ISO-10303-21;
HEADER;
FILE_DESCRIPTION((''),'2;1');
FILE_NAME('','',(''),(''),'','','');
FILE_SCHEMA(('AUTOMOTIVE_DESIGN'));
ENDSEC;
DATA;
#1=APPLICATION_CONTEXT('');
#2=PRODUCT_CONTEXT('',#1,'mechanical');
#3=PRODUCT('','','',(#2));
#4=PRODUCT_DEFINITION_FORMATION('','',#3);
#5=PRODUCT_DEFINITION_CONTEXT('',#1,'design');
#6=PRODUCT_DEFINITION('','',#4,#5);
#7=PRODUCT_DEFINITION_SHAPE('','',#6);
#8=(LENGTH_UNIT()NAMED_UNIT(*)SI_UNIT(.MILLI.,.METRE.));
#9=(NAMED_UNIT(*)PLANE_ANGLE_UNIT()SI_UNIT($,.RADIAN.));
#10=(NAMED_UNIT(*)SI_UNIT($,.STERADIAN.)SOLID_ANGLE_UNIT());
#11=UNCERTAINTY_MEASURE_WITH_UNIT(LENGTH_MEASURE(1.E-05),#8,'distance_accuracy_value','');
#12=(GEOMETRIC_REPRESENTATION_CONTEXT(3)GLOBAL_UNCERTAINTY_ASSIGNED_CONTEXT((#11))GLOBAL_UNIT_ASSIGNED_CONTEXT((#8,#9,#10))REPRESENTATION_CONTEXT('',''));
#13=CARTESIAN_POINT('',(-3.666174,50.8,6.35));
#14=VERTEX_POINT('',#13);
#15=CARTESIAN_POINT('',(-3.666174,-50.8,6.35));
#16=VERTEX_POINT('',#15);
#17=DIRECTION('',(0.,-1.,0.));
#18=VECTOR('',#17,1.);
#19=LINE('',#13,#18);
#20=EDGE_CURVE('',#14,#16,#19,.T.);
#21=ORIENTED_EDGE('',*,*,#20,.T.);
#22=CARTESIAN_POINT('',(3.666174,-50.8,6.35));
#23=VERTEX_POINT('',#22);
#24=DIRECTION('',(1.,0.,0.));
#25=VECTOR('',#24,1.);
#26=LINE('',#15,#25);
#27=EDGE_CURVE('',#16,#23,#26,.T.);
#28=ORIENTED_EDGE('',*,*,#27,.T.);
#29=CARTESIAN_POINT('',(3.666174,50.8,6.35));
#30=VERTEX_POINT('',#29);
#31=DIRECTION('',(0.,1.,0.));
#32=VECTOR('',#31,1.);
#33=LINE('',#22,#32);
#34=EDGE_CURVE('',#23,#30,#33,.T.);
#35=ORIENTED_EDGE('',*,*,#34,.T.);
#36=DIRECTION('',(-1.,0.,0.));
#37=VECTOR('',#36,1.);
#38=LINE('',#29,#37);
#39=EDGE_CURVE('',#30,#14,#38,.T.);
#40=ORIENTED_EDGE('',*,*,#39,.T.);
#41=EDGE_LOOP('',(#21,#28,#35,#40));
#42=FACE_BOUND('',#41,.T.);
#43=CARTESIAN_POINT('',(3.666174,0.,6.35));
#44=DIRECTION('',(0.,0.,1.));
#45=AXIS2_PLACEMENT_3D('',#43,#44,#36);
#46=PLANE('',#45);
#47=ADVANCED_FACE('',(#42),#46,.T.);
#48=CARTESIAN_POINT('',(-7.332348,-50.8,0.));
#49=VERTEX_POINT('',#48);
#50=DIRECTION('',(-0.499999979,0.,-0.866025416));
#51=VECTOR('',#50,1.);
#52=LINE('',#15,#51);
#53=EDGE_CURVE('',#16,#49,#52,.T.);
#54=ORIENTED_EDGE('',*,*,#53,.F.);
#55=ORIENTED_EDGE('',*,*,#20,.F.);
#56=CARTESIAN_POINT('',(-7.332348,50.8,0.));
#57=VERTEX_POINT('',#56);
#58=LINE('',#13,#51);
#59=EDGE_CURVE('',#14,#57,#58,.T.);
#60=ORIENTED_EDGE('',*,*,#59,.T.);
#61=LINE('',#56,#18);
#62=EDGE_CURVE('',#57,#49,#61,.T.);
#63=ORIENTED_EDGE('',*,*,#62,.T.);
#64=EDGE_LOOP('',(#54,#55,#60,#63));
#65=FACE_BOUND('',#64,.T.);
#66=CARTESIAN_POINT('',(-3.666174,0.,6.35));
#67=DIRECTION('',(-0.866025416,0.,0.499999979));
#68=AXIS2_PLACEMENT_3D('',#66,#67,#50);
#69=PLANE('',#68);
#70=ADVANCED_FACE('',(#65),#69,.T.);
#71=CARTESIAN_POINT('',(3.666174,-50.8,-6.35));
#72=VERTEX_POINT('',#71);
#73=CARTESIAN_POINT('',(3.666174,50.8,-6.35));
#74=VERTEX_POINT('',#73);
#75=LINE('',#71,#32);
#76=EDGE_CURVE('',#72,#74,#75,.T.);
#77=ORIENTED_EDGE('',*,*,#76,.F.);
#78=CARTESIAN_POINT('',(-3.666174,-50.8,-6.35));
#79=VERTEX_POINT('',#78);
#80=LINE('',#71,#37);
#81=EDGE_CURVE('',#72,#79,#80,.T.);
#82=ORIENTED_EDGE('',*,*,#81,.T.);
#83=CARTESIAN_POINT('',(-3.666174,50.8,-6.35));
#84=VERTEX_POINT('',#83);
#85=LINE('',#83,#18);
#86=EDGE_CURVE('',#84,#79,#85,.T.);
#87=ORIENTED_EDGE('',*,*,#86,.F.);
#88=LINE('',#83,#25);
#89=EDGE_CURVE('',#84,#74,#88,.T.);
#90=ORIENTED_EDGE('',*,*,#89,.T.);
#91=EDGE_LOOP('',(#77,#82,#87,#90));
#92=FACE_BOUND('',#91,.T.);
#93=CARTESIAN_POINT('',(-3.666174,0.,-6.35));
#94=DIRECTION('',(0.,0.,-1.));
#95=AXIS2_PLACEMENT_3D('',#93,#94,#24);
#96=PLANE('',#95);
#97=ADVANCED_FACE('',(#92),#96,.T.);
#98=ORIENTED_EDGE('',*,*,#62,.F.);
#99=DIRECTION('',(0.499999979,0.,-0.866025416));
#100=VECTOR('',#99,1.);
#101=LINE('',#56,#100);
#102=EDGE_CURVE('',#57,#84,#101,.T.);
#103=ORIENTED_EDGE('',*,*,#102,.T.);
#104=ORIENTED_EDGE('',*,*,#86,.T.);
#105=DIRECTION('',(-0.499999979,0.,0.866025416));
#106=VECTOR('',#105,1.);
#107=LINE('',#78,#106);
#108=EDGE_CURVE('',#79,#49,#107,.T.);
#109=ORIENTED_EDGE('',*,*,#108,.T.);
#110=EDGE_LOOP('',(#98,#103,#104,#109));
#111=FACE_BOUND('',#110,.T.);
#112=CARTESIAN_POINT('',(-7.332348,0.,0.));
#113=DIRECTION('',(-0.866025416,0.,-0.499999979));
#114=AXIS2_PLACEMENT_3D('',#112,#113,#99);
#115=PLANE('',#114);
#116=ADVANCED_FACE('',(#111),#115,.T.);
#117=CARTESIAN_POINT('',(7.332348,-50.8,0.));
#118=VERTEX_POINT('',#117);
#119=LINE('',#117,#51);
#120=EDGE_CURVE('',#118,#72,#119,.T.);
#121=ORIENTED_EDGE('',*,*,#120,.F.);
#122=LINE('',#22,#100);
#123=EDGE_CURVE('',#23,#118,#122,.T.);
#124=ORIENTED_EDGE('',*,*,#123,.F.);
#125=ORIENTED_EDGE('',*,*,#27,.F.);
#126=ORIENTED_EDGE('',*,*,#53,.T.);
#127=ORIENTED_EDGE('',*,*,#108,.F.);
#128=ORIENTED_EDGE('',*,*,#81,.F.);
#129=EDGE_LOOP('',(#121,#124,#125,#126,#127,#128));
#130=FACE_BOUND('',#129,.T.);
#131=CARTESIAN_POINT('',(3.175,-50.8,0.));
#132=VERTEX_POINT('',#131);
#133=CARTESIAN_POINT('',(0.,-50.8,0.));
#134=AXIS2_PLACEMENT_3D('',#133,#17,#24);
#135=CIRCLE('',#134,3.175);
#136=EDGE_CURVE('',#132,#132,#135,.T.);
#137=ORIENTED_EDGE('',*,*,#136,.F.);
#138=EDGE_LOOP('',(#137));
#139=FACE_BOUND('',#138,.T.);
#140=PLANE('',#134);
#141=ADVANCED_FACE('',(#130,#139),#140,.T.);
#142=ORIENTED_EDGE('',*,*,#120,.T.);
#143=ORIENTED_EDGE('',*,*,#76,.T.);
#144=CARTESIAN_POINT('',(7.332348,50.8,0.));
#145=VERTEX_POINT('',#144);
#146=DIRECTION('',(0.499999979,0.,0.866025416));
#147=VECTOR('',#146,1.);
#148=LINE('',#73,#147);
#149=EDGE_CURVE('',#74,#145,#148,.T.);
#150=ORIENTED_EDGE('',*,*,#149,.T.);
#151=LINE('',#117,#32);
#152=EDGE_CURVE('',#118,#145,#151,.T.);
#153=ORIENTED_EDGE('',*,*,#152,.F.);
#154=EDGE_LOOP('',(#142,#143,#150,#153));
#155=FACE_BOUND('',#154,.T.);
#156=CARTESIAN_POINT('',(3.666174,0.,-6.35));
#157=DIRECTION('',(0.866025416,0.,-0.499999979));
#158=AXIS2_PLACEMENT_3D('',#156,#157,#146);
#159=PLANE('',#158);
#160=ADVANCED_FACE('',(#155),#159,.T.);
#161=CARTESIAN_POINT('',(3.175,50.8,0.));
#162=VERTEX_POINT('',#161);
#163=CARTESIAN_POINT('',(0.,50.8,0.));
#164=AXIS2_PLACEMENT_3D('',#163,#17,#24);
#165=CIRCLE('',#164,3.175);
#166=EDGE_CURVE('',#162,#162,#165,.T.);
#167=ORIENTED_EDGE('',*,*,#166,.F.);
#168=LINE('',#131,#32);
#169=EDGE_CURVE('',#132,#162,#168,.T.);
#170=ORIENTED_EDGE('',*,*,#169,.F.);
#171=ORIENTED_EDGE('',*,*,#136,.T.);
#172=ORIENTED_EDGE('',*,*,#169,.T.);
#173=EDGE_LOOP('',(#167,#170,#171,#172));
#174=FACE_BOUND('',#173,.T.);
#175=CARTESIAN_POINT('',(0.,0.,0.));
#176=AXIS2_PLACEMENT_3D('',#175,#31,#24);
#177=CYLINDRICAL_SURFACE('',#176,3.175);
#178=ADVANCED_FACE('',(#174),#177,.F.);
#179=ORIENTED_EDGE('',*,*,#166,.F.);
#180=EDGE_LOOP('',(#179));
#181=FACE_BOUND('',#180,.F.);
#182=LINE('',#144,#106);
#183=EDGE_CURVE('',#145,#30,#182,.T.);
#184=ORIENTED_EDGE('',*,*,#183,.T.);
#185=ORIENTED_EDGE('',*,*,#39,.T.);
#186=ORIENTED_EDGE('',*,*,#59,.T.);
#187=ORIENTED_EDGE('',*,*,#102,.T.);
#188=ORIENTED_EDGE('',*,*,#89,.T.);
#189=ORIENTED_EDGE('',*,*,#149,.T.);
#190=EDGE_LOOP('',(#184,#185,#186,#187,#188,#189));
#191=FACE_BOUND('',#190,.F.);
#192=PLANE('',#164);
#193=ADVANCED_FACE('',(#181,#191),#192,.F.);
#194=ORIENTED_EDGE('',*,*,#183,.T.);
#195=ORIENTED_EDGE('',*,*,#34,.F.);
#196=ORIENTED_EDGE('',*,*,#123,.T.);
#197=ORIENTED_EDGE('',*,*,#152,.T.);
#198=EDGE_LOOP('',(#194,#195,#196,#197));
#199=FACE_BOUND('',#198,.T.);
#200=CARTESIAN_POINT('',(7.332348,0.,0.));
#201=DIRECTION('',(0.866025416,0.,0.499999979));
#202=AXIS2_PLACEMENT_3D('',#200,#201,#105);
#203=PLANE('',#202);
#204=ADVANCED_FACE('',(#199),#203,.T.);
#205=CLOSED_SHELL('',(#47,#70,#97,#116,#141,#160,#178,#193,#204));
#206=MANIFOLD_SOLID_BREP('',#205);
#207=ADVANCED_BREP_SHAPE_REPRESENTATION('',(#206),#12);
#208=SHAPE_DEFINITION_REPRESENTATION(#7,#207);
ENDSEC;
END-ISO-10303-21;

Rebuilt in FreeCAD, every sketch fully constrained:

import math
import FreeCAD as App
import Part
import Sketcher
Q = App.Units.Quantity


def add_polygon(sketch, points):
    """Adds a closed chain of lines whose ends are joined by coincident constraints."""
    first, n = sketch.GeometryCount, len(points)
    for a, b in zip(points, points[1:] + points[:1]):
        sketch.addGeometry(Part.LineSegment(App.Vector(*a, 0), App.Vector(*b, 0)), False)
    for i in range(n):
        sketch.addConstraint(Sketcher.Constraint("Coincident", first + i, 2, first + (i + 1) % n, 1))

doc = App.newDocument("Part")
body = doc.addObject("PartDesign::Body", "Body")

sketch1 = body.newObject("Sketcher::SketchObject", "Sketch")
sketch1.AttachmentSupport = (doc.getObject("XZ_Plane"), [""])
sketch1.MapMode = "FlatFace"
add_polygon(sketch1, [(3.666174, 6.35), (-3.666174, 6.35), (-7.332348, 0), (-3.666174, -6.35), (3.666174, -6.35), (7.332348, 0)])
sketch1.addGeometry(Part.Circle(App.Vector(0, 0, 0), App.Vector(0, 0, 1), 3.175), False)
sketch1.addConstraint([
    Sketcher.Constraint("Horizontal", 0),
    Sketcher.Constraint("Horizontal", 3),
    Sketcher.Constraint("Coincident", 6, 3, -1, 1),
    Sketcher.Constraint("Symmetric", 0, 2, 3, 2, -1, 1),
    Sketcher.Constraint("Symmetric", 1, 2, 4, 2, -1, 1),
    Sketcher.Constraint("PointOnObject", 1, 2, -1),
    Sketcher.Constraint("Parallel", 2, 5),
    Sketcher.Constraint("Vertical", 0, 2, 2, 2),
    Sketcher.Constraint("Diameter", 6, Q("0.25 in")),
    Sketcher.Constraint("Angle", 1, Q("-119.999999 deg")),
    Sketcher.Constraint("DistanceY", 2, 2, 0, 2, Q("0.5 in")),
    Sketcher.Constraint("DistanceX", 0, 2, 0, 1, 7.332348),
])
pad1 = body.newObject("PartDesign::Pad", "Pad")
pad1.Profile = sketch1
pad1.Length = Q("4 in")
pad1.Midplane = True

sketch2 = body.newObject("Sketcher::SketchObject", "Sketch001")
sketch2.AttachmentSupport = (doc.getObject("XZ_Plane"), [""])
sketch2.MapMode = "FlatFace"
sketch2.AttachmentOffset = App.Placement(App.Vector(0, 0, 2 * 25.4), App.Rotation())
sketch2.addGeometry([
    Part.Circle(App.Vector(0, 0, 0), App.Vector(0, 0, 1), 13.907243),
    Part.LineSegment(App.Vector(3.666174, 6.35, 0), App.Vector(4.181771, 5.456961, 0)),
    Part.ArcOfCircle(Part.Circle(App.Vector(0, 0, 0), App.Vector(0, 0, 1), 6.875), math.radians(7.463612), math.radians(52.536376)),
    Part.LineSegment(App.Vector(6.816752, 0.893039, 0), App.Vector(7.332348, 0, 0)),
    Part.LineSegment(App.Vector(7.332348, 0, 0), App.Vector(6.816752, -0.893039, 0)),
    Part.ArcOfCircle(Part.Circle(App.Vector(0, 0, 0), App.Vector(0, 0, 1), 6.875), math.radians(-52.536376), math.radians(-7.463612)),
    Part.LineSegment(App.Vector(4.181771, -5.456961, 0), App.Vector(3.666174, -6.35, 0)),
    Part.LineSegment(App.Vector(3.666174, -6.35, 0), App.Vector(2.634981, -6.35, 0)),
    Part.ArcOfCircle(Part.Circle(App.Vector(0, 0, 0), App.Vector(0, 0, 1), 6.875), math.radians(-112.53638), math.radians(-67.46362)),
    Part.LineSegment(App.Vector(-2.634981, -6.35, 0), App.Vector(-3.666174, -6.35, 0)),
    Part.LineSegment(App.Vector(-3.666174, -6.35, 0), App.Vector(-4.181771, -5.456961, 0)),
    Part.ArcOfCircle(Part.Circle(App.Vector(0, 0, 0), App.Vector(0, 0, 1), 6.875), math.radians(-172.536388), math.radians(-127.463624)),
    Part.LineSegment(App.Vector(-6.816752, -0.893039, 0), App.Vector(-7.332348, 0, 0)),
    Part.LineSegment(App.Vector(-7.332348, 0, 0), App.Vector(-6.816752, 0.893039, 0)),
    Part.ArcOfCircle(Part.Circle(App.Vector(0, 0, 0), App.Vector(0, 0, 1), 6.875), math.radians(127.463624), math.radians(172.536388)),
    Part.LineSegment(App.Vector(-4.181771, 5.456961, 0), App.Vector(-3.666174, 6.35, 0)),
    Part.LineSegment(App.Vector(-3.666174, 6.35, 0), App.Vector(-2.634981, 6.35, 0)),
    Part.ArcOfCircle(Part.Circle(App.Vector(0, 0, 0), App.Vector(0, 0, 1), 6.875), math.radians(67.46362), math.radians(112.53638)),
    Part.LineSegment(App.Vector(2.634981, 6.35, 0), App.Vector(3.666174, 6.35, 0)),
], False)
sketch2.addConstraint([
    Sketcher.Constraint("Coincident", 1, 2, 2, 2),
    Sketcher.Constraint("Coincident", 2, 1, 3, 1),
    Sketcher.Constraint("Coincident", 3, 2, 4, 1),
    Sketcher.Constraint("Coincident", 4, 2, 5, 2),
    Sketcher.Constraint("Coincident", 5, 1, 6, 1),
    Sketcher.Constraint("Coincident", 6, 2, 7, 1),
    Sketcher.Constraint("Coincident", 7, 2, 8, 2),
    Sketcher.Constraint("Coincident", 8, 1, 9, 1),
    Sketcher.Constraint("Coincident", 9, 2, 10, 1),
    Sketcher.Constraint("Coincident", 10, 2, 11, 2),
    Sketcher.Constraint("Coincident", 11, 1, 12, 1),
    Sketcher.Constraint("Coincident", 12, 2, 13, 1),
    Sketcher.Constraint("Coincident", 13, 2, 14, 2),
    Sketcher.Constraint("Coincident", 14, 1, 15, 1),
    Sketcher.Constraint("Coincident", 15, 2, 16, 1),
    Sketcher.Constraint("Coincident", 16, 2, 17, 2),
    Sketcher.Constraint("Coincident", 17, 1, 18, 1),
    Sketcher.Constraint("Coincident", 18, 2, 1, 1),
    Sketcher.Constraint("Horizontal", 7),
    Sketcher.Constraint("Horizontal", 9),
    Sketcher.Constraint("Horizontal", 16),
    Sketcher.Constraint("Horizontal", 18),
    Sketcher.Constraint("Coincident", 0, 3, -1, 1),
    Sketcher.Constraint("Coincident", 2, 3, -1, 1),
    Sketcher.Constraint("Coincident", 5, 3, -1, 1),
    Sketcher.Constraint("Coincident", 8, 3, -1, 1),
    Sketcher.Constraint("Coincident", 11, 3, -1, 1),
    Sketcher.Constraint("Coincident", 14, 3, -1, 1),
    Sketcher.Constraint("Coincident", 17, 3, -1, 1),
    Sketcher.Constraint("Equal", 2, 5),
    Sketcher.Constraint("Equal", 5, 8),
    Sketcher.Constraint("Equal", 8, 11),
    Sketcher.Constraint("Equal", 11, 14),
    Sketcher.Constraint("Equal", 14, 17),
    Sketcher.Constraint("Symmetric", 3, 2, 12, 2, -1, 1),
    Sketcher.Constraint("Symmetric", 6, 2, 15, 2, -1, 1),
    Sketcher.Constraint("Symmetric", 9, 2, 18, 2, -1, 1),
    Sketcher.Constraint("Symmetric", 6, 2, 9, 2, -2),
    Sketcher.Constraint("PointOnObject", 3, 2, -1),
    Sketcher.Constraint("Parallel", 1, 3),
    Sketcher.Constraint("Parallel", 4, 6),
    Sketcher.Constraint("Parallel", 3, 10),
    Sketcher.Constraint("Parallel", 10, 12),
    Sketcher.Constraint("Parallel", 6, 13),
    Sketcher.Constraint("Parallel", 13, 15),
    Sketcher.Constraint("Horizontal", 5, 1, 10, 2),
    Sketcher.Constraint("Equal", 1, 3),
    Sketcher.Constraint("Angle", 3, Q("-60.000015 deg")),
    Sketcher.Constraint("DistanceY", 6, 2, -1, 1, Q("0.25 in")),
    Sketcher.Constraint("Radius", 2, 6.875),
    Sketcher.Constraint("Diameter", 0, 27.814486),
    Sketcher.Constraint("DistanceX", 7, 2, 7, 1, 1.031193),
])
pocket1 = body.newObject("PartDesign::Pocket", "Pocket")
pocket1.Profile = sketch2
pocket1.Type = "ThroughAll"

doc.recompute()
